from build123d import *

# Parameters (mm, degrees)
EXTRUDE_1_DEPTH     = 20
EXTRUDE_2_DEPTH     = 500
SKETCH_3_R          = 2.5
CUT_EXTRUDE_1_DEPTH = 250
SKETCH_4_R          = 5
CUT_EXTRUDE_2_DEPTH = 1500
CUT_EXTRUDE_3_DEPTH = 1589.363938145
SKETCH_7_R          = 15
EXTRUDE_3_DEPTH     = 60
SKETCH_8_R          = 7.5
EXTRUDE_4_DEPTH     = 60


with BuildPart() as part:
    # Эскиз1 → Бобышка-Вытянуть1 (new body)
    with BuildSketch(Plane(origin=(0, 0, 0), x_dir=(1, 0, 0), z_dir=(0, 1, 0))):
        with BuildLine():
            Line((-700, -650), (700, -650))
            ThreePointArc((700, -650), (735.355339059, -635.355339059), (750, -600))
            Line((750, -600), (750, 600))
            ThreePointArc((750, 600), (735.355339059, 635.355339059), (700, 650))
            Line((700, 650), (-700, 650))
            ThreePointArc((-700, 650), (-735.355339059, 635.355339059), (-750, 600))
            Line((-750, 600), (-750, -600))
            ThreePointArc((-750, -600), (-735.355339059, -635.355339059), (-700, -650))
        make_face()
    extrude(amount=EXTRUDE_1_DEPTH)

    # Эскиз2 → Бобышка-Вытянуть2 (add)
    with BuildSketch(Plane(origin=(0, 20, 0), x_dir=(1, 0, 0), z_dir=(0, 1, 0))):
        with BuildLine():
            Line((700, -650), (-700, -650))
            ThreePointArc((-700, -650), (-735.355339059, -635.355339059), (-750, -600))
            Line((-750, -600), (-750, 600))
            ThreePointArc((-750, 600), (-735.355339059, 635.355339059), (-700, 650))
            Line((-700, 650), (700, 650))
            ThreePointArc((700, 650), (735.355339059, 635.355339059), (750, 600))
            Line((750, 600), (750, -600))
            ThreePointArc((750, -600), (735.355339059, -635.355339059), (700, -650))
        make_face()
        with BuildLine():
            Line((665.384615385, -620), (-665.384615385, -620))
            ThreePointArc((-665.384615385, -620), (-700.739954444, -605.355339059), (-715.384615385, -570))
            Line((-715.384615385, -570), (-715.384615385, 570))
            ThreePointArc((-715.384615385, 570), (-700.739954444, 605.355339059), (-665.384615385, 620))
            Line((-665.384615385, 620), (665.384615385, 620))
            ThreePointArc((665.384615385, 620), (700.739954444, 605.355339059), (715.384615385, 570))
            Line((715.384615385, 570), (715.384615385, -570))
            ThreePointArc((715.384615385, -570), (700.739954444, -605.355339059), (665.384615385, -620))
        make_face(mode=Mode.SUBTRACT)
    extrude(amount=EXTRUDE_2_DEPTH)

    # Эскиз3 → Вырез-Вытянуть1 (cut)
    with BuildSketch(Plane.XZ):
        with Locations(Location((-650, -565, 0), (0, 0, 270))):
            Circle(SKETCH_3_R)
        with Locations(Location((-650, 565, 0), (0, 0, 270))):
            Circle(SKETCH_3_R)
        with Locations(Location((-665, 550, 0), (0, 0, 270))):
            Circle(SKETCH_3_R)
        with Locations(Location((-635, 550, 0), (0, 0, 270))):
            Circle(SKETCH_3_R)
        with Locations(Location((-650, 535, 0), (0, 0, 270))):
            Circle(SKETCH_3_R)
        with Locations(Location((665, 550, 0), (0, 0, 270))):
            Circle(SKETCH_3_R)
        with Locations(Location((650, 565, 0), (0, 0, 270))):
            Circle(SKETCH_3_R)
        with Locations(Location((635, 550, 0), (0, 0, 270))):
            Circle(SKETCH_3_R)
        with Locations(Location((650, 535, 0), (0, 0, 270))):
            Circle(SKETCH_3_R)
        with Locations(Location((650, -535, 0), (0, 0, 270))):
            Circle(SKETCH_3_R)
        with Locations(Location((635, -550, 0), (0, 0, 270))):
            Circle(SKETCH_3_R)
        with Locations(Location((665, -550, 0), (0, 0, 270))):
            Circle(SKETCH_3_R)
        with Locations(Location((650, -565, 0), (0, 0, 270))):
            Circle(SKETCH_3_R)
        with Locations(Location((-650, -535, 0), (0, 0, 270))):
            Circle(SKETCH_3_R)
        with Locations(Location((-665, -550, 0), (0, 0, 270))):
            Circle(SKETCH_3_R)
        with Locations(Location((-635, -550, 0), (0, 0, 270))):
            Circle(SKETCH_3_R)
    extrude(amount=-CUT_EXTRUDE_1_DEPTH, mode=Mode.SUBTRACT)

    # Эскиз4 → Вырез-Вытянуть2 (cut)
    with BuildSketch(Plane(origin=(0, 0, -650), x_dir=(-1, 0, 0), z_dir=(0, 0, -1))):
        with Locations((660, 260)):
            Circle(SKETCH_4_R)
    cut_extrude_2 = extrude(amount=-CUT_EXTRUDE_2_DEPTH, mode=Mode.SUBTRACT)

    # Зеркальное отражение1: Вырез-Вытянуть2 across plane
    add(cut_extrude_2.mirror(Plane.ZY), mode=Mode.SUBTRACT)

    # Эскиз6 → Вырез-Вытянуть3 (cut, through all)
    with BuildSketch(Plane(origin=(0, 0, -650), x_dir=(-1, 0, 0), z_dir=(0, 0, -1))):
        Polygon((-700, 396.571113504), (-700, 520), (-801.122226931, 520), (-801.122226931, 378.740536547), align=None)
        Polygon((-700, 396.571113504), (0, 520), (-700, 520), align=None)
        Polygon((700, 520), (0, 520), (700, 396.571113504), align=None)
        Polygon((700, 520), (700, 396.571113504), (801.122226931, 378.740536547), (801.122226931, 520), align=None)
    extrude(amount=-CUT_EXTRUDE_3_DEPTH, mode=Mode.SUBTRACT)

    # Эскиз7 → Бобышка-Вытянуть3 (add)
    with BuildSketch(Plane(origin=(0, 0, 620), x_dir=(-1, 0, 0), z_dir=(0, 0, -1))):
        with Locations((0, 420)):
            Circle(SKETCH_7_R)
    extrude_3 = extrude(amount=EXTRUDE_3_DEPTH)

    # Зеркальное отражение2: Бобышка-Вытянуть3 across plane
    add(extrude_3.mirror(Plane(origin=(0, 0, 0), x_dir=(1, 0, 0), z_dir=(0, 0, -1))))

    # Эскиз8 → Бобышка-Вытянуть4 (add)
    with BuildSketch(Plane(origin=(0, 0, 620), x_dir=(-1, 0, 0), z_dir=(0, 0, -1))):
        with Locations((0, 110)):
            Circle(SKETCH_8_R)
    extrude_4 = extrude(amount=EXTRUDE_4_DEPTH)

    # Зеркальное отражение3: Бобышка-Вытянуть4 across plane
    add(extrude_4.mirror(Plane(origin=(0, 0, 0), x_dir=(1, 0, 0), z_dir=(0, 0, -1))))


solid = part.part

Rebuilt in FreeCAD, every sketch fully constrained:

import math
import FreeCAD as App
import Part
import Sketcher
Q = App.Units.Quantity

doc = App.newDocument("Part")
body = doc.addObject("PartDesign::Body", "Body")

# Sketch on XZ plane
sketch1 = body.newObject("Sketcher::SketchObject", "Sketch")
sketch1.AttachmentSupport = (doc.getObject("XZ_Plane"), [""])
sketch1.MapMode = "FlatFace"
sketch1.addGeometry(Part.LineSegment(App.Vector(-700, 650, 0), App.Vector(700, 650, 0)), False)
sketch1.addGeometry(Part.ArcOfCircle(Part.Circle(App.Vector(700, 600, 0), App.Vector(0, 0, 1), 50), math.radians(0), math.radians(90)), False)
sketch1.addGeometry(Part.LineSegment(App.Vector(750, 600, 0), App.Vector(750, -600, 0)), False)
sketch1.addGeometry(Part.ArcOfCircle(Part.Circle(App.Vector(700, -600, 0), App.Vector(0, 0, 1), 50), math.radians(-90), math.radians(0)), False)
sketch1.addGeometry(Part.LineSegment(App.Vector(700, -650, 0), App.Vector(-700, -650, 0)), False)
sketch1.addGeometry(Part.ArcOfCircle(Part.Circle(App.Vector(-700, -600, 0), App.Vector(0, 0, 1), 50), math.radians(-180), math.radians(-90)), False)
sketch1.addGeometry(Part.LineSegment(App.Vector(-750, -600, 0), App.Vector(-750, 600, 0)), False)
sketch1.addGeometry(Part.ArcOfCircle(Part.Circle(App.Vector(-700, 600, 0), App.Vector(0, 0, 1), 50), math.radians(90), math.radians(180)), False)
sketch1.addConstraint(Sketcher.Constraint("Tangent", 0, 2, 1, 2))
sketch1.addConstraint(Sketcher.Constraint("Tangent", 1, 1, 2, 1))
sketch1.addConstraint(Sketcher.Constraint("Tangent", 2, 2, 3, 2))
sketch1.addConstraint(Sketcher.Constraint("Tangent", 3, 1, 4, 1))
sketch1.addConstraint(Sketcher.Constraint("Tangent", 4, 2, 5, 2))
sketch1.addConstraint(Sketcher.Constraint("Tangent", 5, 1, 6, 1))
sketch1.addConstraint(Sketcher.Constraint("Tangent", 6, 2, 7, 2))
sketch1.addConstraint(Sketcher.Constraint("Tangent", 7, 1, 0, 1))
sketch1.addConstraint(Sketcher.Constraint("Horizontal", 0))
sketch1.addConstraint(Sketcher.Constraint("Vertical", 2))
sketch1.addConstraint(Sketcher.Constraint("Horizontal", 4))
sketch1.addConstraint(Sketcher.Constraint("Vertical", 6))
sketch1.addConstraint(Sketcher.Constraint("Equal", 1, 3))
sketch1.addConstraint(Sketcher.Constraint("Equal", 3, 5))
sketch1.addConstraint(Sketcher.Constraint("Equal", 5, 7))
sketch1.addConstraint(Sketcher.Constraint("Symmetric", 1, 3, 5, 3, -1, 1))
sketch1.addConstraint(Sketcher.Constraint("Radius", 1, 50.0))
sketch1.addConstraint(Sketcher.Constraint("DistanceX", 0, 1, 0, 2, 1400.0))
sketch1.addConstraint(Sketcher.Constraint("DistanceY", 2, 2, 2, 1, 1200.0))
pad1 = body.newObject("PartDesign::Pad", "Pad")
pad1.Profile = sketch1
pad1.Length = 20
pad1.Reversed = True

# Sketch on XZ plane
sketch2 = body.newObject("Sketcher::SketchObject", "Sketch001")
sketch2.AttachmentSupport = (doc.getObject("XZ_Plane"), [""])
sketch2.MapMode = "FlatFace"
sketch2.AttachmentOffset = App.Placement(App.Vector(0, 0, -20), App.Rotation())
sketch2.addGeometry(Part.LineSegment(App.Vector(-700, 650, 0), App.Vector(700, 650, 0)), False)
sketch2.addGeometry(Part.ArcOfCircle(Part.Circle(App.Vector(700, 600, 0), App.Vector(0, 0, 1), 50), math.radians(0), math.radians(90)), False)
sketch2.addGeometry(Part.LineSegment(App.Vector(750, 600, 0), App.Vector(750, -600, 0)), False)
sketch2.addGeometry(Part.ArcOfCircle(Part.Circle(App.Vector(700, -600, 0), App.Vector(0, 0, 1), 50), math.radians(-90), math.radians(0)), False)
sketch2.addGeometry(Part.LineSegment(App.Vector(700, -650, 0), App.Vector(-700, -650, 0)), False)
sketch2.addGeometry(Part.ArcOfCircle(Part.Circle(App.Vector(-700, -600, 0), App.Vector(0, 0, 1), 50), math.radians(-180), math.radians(-90)), False)
sketch2.addGeometry(Part.LineSegment(App.Vector(-750, -600, 0), App.Vector(-750, 600, 0)), False)
sketch2.addGeometry(Part.ArcOfCircle(Part.Circle(App.Vector(-700, 600, 0), App.Vector(0, 0, 1), 50), math.radians(90), math.radians(180)), False)
sketch2.addGeometry(Part.LineSegment(App.Vector(665, 620, 0), App.Vector(-665, 620, 0)), False)
sketch2.addGeometry(Part.ArcOfCircle(Part.Circle(App.Vector(-665, 570, 0), App.Vector(0, 0, 1), 50), math.radians(90), math.radians(180)), False)
sketch2.addGeometry(Part.LineSegment(App.Vector(-715, 570, 0), App.Vector(-715, -570, 0)), False)
sketch2.addGeometry(Part.ArcOfCircle(Part.Circle(App.Vector(-665, -570, 0), App.Vector(0, 0, 1), 50), math.radians(-180), math.radians(-90)), False)
sketch2.addGeometry(Part.LineSegment(App.Vector(-665, -620, 0), App.Vector(665, -620, 0)), False)
sketch2.addGeometry(Part.ArcOfCircle(Part.Circle(App.Vector(665, -570, 0), App.Vector(0, 0, 1), 50), math.radians(-90), math.radians(0)), False)
sketch2.addGeometry(Part.LineSegment(App.Vector(715, -570, 0), App.Vector(715, 570, 0)), False)
sketch2.addGeometry(Part.ArcOfCircle(Part.Circle(App.Vector(665, 570, 0), App.Vector(0, 0, 1), 50), math.radians(0), math.radians(90)), False)
sketch2.addConstraint(Sketcher.Constraint("Tangent", 0, 2, 1, 2))
sketch2.addConstraint(Sketcher.Constraint("Tangent", 1, 1, 2, 1))
sketch2.addConstraint(Sketcher.Constraint("Tangent", 2, 2, 3, 2))
sketch2.addConstraint(Sketcher.Constraint("Tangent", 3, 1, 4, 1))
sketch2.addConstraint(Sketcher.Constraint("Tangent", 4, 2, 5, 2))
sketch2.addConstraint(Sketcher.Constraint("Tangent", 5, 1, 6, 1))
sketch2.addConstraint(Sketcher.Constraint("Tangent", 6, 2, 7, 2))
sketch2.addConstraint(Sketcher.Constraint("Tangent", 7, 1, 0, 1))
sketch2.addConstraint(Sketcher.Constraint("Tangent", 8, 2, 9, 1))
sketch2.addConstraint(Sketcher.Constraint("Tangent", 9, 2, 10, 1))
sketch2.addConstraint(Sketcher.Constraint("Tangent", 10, 2, 11, 1))
sketch2.addConstraint(Sketcher.Constraint("Tangent", 11, 2, 12, 1))
sketch2.addConstraint(Sketcher.Constraint("Tangent", 12, 2, 13, 1))
sketch2.addConstraint(Sketcher.Constraint("Tangent", 13, 2, 14, 1))
sketch2.addConstraint(Sketcher.Constraint("Tangent", 14, 2, 15, 1))
sketch2.addConstraint(Sketcher.Constraint("Tangent", 15, 2, 8, 1))
sketch2.addConstraint(Sketcher.Constraint("Horizontal", 0))
sketch2.addConstraint(Sketcher.Constraint("Vertical", 2))
sketch2.addConstraint(Sketcher.Constraint("Horizontal", 4))
sketch2.addConstraint(Sketcher.Constraint("Vertical", 6))
sketch2.addConstraint(Sketcher.Constraint("Horizontal", 8))
sketch2.addConstraint(Sketcher.Constraint("Vertical", 10))
sketch2.addConstraint(Sketcher.Constraint("Horizontal", 12))
sketch2.addConstraint(Sketcher.Constraint("Vertical", 14))
sketch2.addConstraint(Sketcher.Constraint("Equal", 1, 3))
sketch2.addConstraint(Sketcher.Constraint("Equal", 3, 5))
sketch2.addConstraint(Sketcher.Constraint("Equal", 5, 7))
sketch2.addConstraint(Sketcher.Constraint("Equal", 7, 9))
sketch2.addConstraint(Sketcher.Constraint("Equal", 9, 11))
sketch2.addConstraint(Sketcher.Constraint("Equal", 11, 13))
sketch2.addConstraint(Sketcher.Constraint("Equal", 13, 15))
sketch2.addConstraint(Sketcher.Constraint("Symmetric", 1, 3, 5, 3, -1, 1))
sketch2.addConstraint(Sketcher.Constraint("Symmetric", 9, 3, 13, 3, -1, 1))
sketch2.addConstraint(Sketcher.Constraint("Radius", 1, 50.0))
sketch2.addConstraint(Sketcher.Constraint("DistanceX", 0, 1, 0, 2, 1400.0))
sketch2.addConstraint(Sketcher.Constraint("DistanceY", 2, 2, 2, 1, 1200.0))
sketch2.addConstraint(Sketcher.Constraint("DistanceY", 10, 2, 10, 1, 1140.0))
sketch2.addConstraint(Sketcher.Constraint("DistanceX", 8, 2, 8, 1, 1330.769231))
pad2 = body.newObject("PartDesign::Pad", "Pad001")
pad2.Profile = sketch2
pad2.Length = 500
pad2.Reversed = True

# Sketch on XZ plane
sketch3 = body.newObject("Sketcher::SketchObject", "Sketch002")
sketch3.AttachmentSupport = (doc.getObject("XZ_Plane"), [""])
sketch3.MapMode = "FlatFace"
sketch3.addGeometry(Part.Circle(App.Vector(-650, -565, 0), App.Vector(0, 0, 1), 2.5), False)
sketch3.addGeometry(Part.Circle(App.Vector(-650, 565, 0), App.Vector(0, 0, 1), 2.5), False)
sketch3.addGeometry(Part.Circle(App.Vector(-665, 550, 0), App.Vector(0, 0, 1), 2.5), False)
sketch3.addGeometry(Part.Circle(App.Vector(-635, 550, 0), App.Vector(0, 0, 1), 2.5), False)
sketch3.addGeometry(Part.Circle(App.Vector(-650, 535, 0), App.Vector(0, 0, 1), 2.5), False)
sketch3.addGeometry(Part.Circle(App.Vector(665, 550, 0), App.Vector(0, 0, 1), 2.5), False)
sketch3.addGeometry(Part.Circle(App.Vector(650, 565, 0), App.Vector(0, 0, 1), 2.5), False)
sketch3.addGeometry(Part.Circle(App.Vector(635, 550, 0), App.Vector(0, 0, 1), 2.5), False)
sketch3.addGeometry(Part.Circle(App.Vector(650, 535, 0), App.Vector(0, 0, 1), 2.5), False)
sketch3.addGeometry(Part.Circle(App.Vector(650, -535, 0), App.Vector(0, 0, 1), 2.5), False)
sketch3.addGeometry(Part.Circle(App.Vector(635, -550, 0), App.Vector(0, 0, 1), 2.5), False)
sketch3.addGeometry(Part.Circle(App.Vector(665, -550, 0), App.Vector(0, 0, 1), 2.5), False)
sketch3.addGeometry(Part.Circle(App.Vector(650, -565, 0), App.Vector(0, 0, 1), 2.5), False)
sketch3.addGeometry(Part.Circle(App.Vector(-650, -535, 0), App.Vector(0, 0, 1), 2.5), False)
sketch3.addGeometry(Part.Circle(App.Vector(-665, -550, 0), App.Vector(0, 0, 1), 2.5), False)
sketch3.addGeometry(Part.Circle(App.Vector(-635, -550, 0), App.Vector(0, 0, 1), 2.5), False)
sketch3.addConstraint(Sketcher.Constraint("Equal", 0, 1))
sketch3.addConstraint(Sketcher.Constraint("Equal", 1, 2))
sketch3.addConstraint(Sketcher.Constraint("Equal", 2, 3))
sketch3.addConstraint(Sketcher.Constraint("Equal", 3, 4))
sketch3.addConstraint(Sketcher.Constraint("Equal", 4, 5))
sketch3.addConstraint(Sketcher.Constraint("Equal", 5, 6))
sketch3.addConstraint(Sketcher.Constraint("Equal", 6, 7))
sketch3.addConstraint(Sketcher.Constraint("Equal", 7, 8))
sketch3.addConstraint(Sketcher.Constraint("Equal", 8, 9))
sketch3.addConstraint(Sketcher.Constraint("Equal", 9, 10))
sketch3.addConstraint(Sketcher.Constraint("Equal", 10, 11))
sketch3.addConstraint(Sketcher.Constraint("Equal", 11, 12))
sketch3.addConstraint(Sketcher.Constraint("Equal", 12, 13))
sketch3.addConstraint(Sketcher.Constraint("Equal", 13, 14))
sketch3.addConstraint(Sketcher.Constraint("Equal", 14, 15))
sketch3.addConstraint(Sketcher.Constraint("Symmetric", 0, 3, 6, 3, -1, 1))
sketch3.addConstraint(Sketcher.Constraint("Symmetric", 4, 3, 9, 3, -1, 1))
sketch3.addConstraint(Sketcher.Constraint("Symmetric", 3, 3, 10, 3, -1, 1))
sketch3.addConstraint(Sketcher.Constraint("Symmetric", 2, 3, 11, 3, -1, 1))
sketch3.addConstraint(Sketcher.Constraint("Symmetric", 1, 3, 12, 3, -1, 1))
sketch3.addConstraint(Sketcher.Constraint("Symmetric", 8, 3, 13, 3, -1, 1))
sketch3.addConstraint(Sketcher.Constraint("Symmetric", 5, 3, 14, 3, -1, 1))
sketch3.addConstraint(Sketcher.Constraint("Symmetric", 7, 3, 15, 3, -1, 1))
sketch3.addConstraint(Sketcher.Constraint("Symmetric", 2, 3, 5, 3, -2))
sketch3.addConstraint(Sketcher.Constraint("Symmetric", 1, 3, 6, 3, -2))
sketch3.addConstraint(Sketcher.Constraint("Symmetric", 3, 3, 7, 3, -2))
sketch3.addConstraint(Sketcher.Constraint("Symmetric", 4, 3, 8, 3, -2))
sketch3.addConstraint(Sketcher.Constraint("Horizontal", 2, 3, 3, 3))
sketch3.addConstraint(Sketcher.Constraint("Vertical", 1, 3, 4, 3))
sketch3.addConstraint(Sketcher.Constraint("Diameter", 0, 5.0))
sketch3.addConstraint(Sketcher.Constraint("DistanceX", 0, 3, -1, 1, 650.0))
sketch3.addConstraint(Sketcher.Constraint("DistanceY", 0, 3, -1, 1, 565.0))
sketch3.addConstraint(Sketcher.Constraint("DistanceX", 2, 3, -1, 1, 665.0))
sketch3.addConstraint(Sketcher.Constraint("DistanceY", -1, 1, 2, 3, 550.0))
sketch3.addConstraint(Sketcher.Constraint("DistanceX", 3, 3, -1, 1, 635.0))
sketch3.addConstraint(Sketcher.Constraint("DistanceY", -1, 1, 4, 3, 535.0))
pocket1 = body.newObject("PartDesign::Pocket", "Pocket")
pocket1.Profile = sketch3
pocket1.Length = 250

# Sketch on XY plane
sketch4 = body.newObject("Sketcher::SketchObject", "Sketch003")
sketch4.AttachmentSupport = (doc.getObject("XY_Plane"), [""])
sketch4.MapMode = "FlatFace"
sketch4.AttachmentOffset = App.Placement(App.Vector(0, 0, -650), App.Rotation())
sketch4.addGeometry(Part.Circle(App.Vector(-660, 260, 0), App.Vector(0, 0, 1), 5), False)
sketch4.addConstraint(Sketcher.Constraint("Diameter", 0, 10.0))
sketch4.addConstraint(Sketcher.Constraint("DistanceX", 0, 3, -1, 1, 660.0))
sketch4.addConstraint(Sketcher.Constraint("DistanceY", -1, 1, 0, 3, 260.0))
pocket2 = body.newObject("PartDesign::Pocket", "Pocket001")
pocket2.Profile = sketch4
pocket2.Length = 1500
pocket2.Reversed = True
doc.recompute()

mirrored = body.newObject("PartDesign::Mirrored", "Mirrored")
mirrored.Originals = [pocket2]
mirrored.MirrorPlane = (doc.getObject("YZ_Plane"), [""])
body.Tip = mirrored

# Sketch on XY plane
sketch5 = body.newObject("Sketcher::SketchObject", "Sketch004")
sketch5.AttachmentSupport = (doc.getObject("XY_Plane"), [""])
sketch5.MapMode = "FlatFace"
sketch5.AttachmentOffset = App.Placement(App.Vector(0, 0, -650), App.Rotation())
sketch5.addGeometry(Part.LineSegment(App.Vector(801, 520, 0), App.Vector(801, 379, 0)), False)
sketch5.addGeometry(Part.LineSegment(App.Vector(801, 379, 0), App.Vector(700, 397, 0)), False)
sketch5.addGeometry(Part.LineSegment(App.Vector(700, 397, 0), App.Vector(0, 520, 0)), False)
sketch5.addGeometry(Part.LineSegment(App.Vector(0, 520, 0), App.Vector(801, 520, 0)), False)
sketch5.addGeometry(Part.LineSegment(App.Vector(0, 520, 0), App.Vector(-700, 397, 0)), False)
sketch5.addGeometry(Part.LineSegment(App.Vector(-700, 397, 0), App.Vector(-801, 379, 0)), False)
sketch5.addGeometry(Part.LineSegment(App.Vector(-801, 379, 0), App.Vector(-801, 520, 0)), False)
sketch5.addGeometry(Part.LineSegment(App.Vector(-801, 520, 0), App.Vector(0, 520, 0)), False)
sketch5.addConstraint(Sketcher.Constraint("Coincident", 0, 2, 1, 1))
sketch5.addConstraint(Sketcher.Constraint("Coincident", 1, 2, 2, 1))
sketch5.addConstraint(Sketcher.Constraint("Coincident", 2, 2, 3, 1))
sketch5.addConstraint(Sketcher.Constraint("Coincident", 3, 2, 0, 1))
sketch5.addConstraint(Sketcher.Constraint("Coincident", 4, 2, 5, 1))
sketch5.addConstraint(Sketcher.Constraint("Coincident", 5, 2, 6, 1))
sketch5.addConstraint(Sketcher.Constraint("Coincident", 6, 2, 7, 1))
sketch5.addConstraint(Sketcher.Constraint("Coincident", 7, 2, 4, 1))
sketch5.addConstraint(Sketcher.Constraint("Vertical", 0))
sketch5.addConstraint(Sketcher.Constraint("Horizontal", 3))
sketch5.addConstraint(Sketcher.Constraint("Vertical", 6))
sketch5.addConstraint(Sketcher.Constraint("Horizontal", 7))
sketch5.addConstraint(Sketcher.Constraint("Coincident", 7, 2, 2, 2))
sketch5.addConstraint(Sketcher.Constraint("Symmetric", 1, 2, 4, 2, -2))
sketch5.addConstraint(Sketcher.Constraint("Symmetric", 0, 2, 5, 2, -2))
sketch5.addConstraint(Sketcher.Constraint("PointOnObject", 2, 2, -2))
sketch5.addConstraint(Sketcher.Constraint("Parallel", 1, 2))
sketch5.addConstraint(Sketcher.Constraint("Angle", 1, Q("170 deg")))
sketch5.addConstraint(Sketcher.Constraint("DistanceX", -1, 1, 1, 2, 700.0))
sketch5.addConstraint(Sketcher.Constraint("DistanceY", -1, 1, 2, 2, 520.0))
sketch5.addConstraint(Sketcher.Constraint("Distance", 1, 102.6822))
pocket3 = body.newObject("PartDesign::Pocket", "Pocket002")
pocket3.Profile = sketch5
pocket3.Type = "ThroughAll"
pocket3.Reversed = True

# Sketch on XY plane
sketch6 = body.newObject("Sketcher::SketchObject", "Sketch005")
sketch6.AttachmentSupport = (doc.getObject("XY_Plane"), [""])
sketch6.MapMode = "FlatFace"
sketch6.AttachmentOffset = App.Placement(App.Vector(0, 0, 620), App.Rotation())
sketch6.addGeometry(Part.Circle(App.Vector(0, 420, 0), App.Vector(0, 0, 1), 15), False)
sketch6.addConstraint(Sketcher.Constraint("PointOnObject", 0, 3, -2))
sketch6.addConstraint(Sketcher.Constraint("Diameter", 0, 30.0))
sketch6.addConstraint(Sketcher.Constraint("DistanceY", -1, 1, 0, 3, 420.0))
pad3 = body.newObject("PartDesign::Pad", "Pad002")
pad3.Profile = sketch6
pad3.Length = 60
pad3.Reversed = True
doc.recompute()

mirrored2 = body.newObject("PartDesign::Mirrored", "Mirrored001")
mirrored2.Originals = [pad3]
mirrored2.MirrorPlane = (doc.getObject("XY_Plane"), [""])
body.Tip = mirrored2

# Sketch on XY plane
sketch7 = body.newObject("Sketcher::SketchObject", "Sketch006")
sketch7.AttachmentSupport = (doc.getObject("XY_Plane"), [""])
sketch7.MapMode = "FlatFace"
sketch7.AttachmentOffset = App.Placement(App.Vector(0, 0, 620), App.Rotation())
sketch7.addGeometry(Part.Circle(App.Vector(0, 110, 0), App.Vector(0, 0, 1), 8), False)
sketch7.addConstraint(Sketcher.Constraint("PointOnObject", 0, 3, -2))
sketch7.addConstraint(Sketcher.Constraint("Diameter", 0, 15.0))
sketch7.addConstraint(Sketcher.Constraint("DistanceY", -1, 1, 0, 3, 110.0))
pad4 = body.newObject("PartDesign::Pad", "Pad003")
pad4.Profile = sketch7
pad4.Length = 60
pad4.Reversed = True
doc.recompute()

mirrored3 = body.newObject("PartDesign::Mirrored", "Mirrored002")
mirrored3.Originals = [pad4]
mirrored3.MirrorPlane = (doc.getObject("XY_Plane"), [""])
body.Tip = mirrored3

doc.recompute()
